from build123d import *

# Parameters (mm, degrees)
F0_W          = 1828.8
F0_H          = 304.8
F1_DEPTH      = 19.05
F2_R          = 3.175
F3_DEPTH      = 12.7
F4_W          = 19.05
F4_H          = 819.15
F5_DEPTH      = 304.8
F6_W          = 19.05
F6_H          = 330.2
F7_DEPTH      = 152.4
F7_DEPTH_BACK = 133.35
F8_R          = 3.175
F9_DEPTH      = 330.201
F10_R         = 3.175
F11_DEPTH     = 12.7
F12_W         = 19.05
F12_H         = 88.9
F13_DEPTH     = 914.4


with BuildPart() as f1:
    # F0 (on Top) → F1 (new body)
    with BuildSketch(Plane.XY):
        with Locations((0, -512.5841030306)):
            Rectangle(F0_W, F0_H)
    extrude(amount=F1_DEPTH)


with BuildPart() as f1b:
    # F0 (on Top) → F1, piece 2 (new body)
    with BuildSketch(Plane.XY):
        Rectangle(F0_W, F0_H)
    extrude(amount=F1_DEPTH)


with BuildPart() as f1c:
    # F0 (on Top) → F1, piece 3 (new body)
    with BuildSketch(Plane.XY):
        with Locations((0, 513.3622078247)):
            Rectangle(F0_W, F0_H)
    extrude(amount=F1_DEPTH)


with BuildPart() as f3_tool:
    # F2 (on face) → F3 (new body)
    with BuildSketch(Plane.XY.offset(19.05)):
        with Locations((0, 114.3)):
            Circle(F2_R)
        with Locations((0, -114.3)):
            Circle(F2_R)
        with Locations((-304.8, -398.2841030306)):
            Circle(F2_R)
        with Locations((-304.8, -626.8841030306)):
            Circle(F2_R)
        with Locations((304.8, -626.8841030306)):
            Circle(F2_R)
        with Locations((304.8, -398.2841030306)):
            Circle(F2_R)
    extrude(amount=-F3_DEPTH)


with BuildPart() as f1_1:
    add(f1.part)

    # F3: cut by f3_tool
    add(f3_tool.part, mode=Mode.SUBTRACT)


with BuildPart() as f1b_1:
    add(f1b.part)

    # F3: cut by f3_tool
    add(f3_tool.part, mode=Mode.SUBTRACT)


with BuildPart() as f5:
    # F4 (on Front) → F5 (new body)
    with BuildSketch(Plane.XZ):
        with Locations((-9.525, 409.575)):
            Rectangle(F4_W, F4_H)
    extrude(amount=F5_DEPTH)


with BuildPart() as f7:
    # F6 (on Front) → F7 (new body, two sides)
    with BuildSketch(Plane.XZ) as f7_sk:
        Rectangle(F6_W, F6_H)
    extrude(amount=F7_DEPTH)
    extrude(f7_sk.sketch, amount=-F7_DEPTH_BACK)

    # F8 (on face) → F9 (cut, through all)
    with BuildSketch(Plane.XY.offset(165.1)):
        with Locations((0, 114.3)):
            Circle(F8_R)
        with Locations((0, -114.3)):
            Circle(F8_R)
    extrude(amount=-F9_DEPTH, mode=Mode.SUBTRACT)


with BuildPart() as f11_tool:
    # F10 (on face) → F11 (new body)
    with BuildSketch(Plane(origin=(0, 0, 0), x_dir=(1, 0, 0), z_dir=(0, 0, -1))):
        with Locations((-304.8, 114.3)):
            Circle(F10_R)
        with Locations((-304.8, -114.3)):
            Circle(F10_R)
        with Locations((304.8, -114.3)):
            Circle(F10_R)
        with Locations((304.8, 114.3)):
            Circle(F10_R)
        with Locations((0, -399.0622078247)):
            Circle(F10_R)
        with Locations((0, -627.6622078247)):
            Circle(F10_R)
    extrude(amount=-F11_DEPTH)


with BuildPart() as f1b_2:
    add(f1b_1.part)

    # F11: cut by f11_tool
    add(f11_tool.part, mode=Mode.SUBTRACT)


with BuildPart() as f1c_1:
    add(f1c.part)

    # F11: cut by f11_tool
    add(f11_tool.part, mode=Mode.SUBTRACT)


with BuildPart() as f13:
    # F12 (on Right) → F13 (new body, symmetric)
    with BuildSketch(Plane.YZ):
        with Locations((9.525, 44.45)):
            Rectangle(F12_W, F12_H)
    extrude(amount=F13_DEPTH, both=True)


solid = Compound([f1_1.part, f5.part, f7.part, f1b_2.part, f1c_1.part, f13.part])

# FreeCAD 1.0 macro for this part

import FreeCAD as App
import Part
import Sketcher

V = App.Vector
Q = App.Units.Quantity

doc = App.newDocument("Part")
body = doc.addObject("PartDesign::Body", "Body")

sketch1 = body.newObject("Sketcher::SketchObject", "Sketch")
sketch1.AttachmentSupport = (doc.getObject("XY_Plane"), [""])
sketch1.MapMode = "FlatFace"
sketch1.addGeometry(Part.LineSegment(V(-914, -360, 0), V(-914, -665, 0)), False)
sketch1.addGeometry(Part.LineSegment(V(-914, -665, 0), V(914, -665, 0)), False)
sketch1.addGeometry(Part.LineSegment(V(914, -665, 0), V(914, -360, 0)), False)
sketch1.addGeometry(Part.LineSegment(V(914, -360, 0), V(-914, -360, 0)), False)
sketch1.addConstraint(Sketcher.Constraint("Coincident", 0, 2, 1, 1))
sketch1.addConstraint(Sketcher.Constraint("Coincident", 1, 2, 2, 1))
sketch1.addConstraint(Sketcher.Constraint("Coincident", 2, 2, 3, 1))
sketch1.addConstraint(Sketcher.Constraint("Coincident", 3, 2, 0, 1))
sketch1.addConstraint(Sketcher.Constraint("Vertical", 0))
sketch1.addConstraint(Sketcher.Constraint("Horizontal", 1))
sketch1.addConstraint(Sketcher.Constraint("Vertical", 2))
sketch1.addConstraint(Sketcher.Constraint("Horizontal", 3))
sketch1.addConstraint(Sketcher.Constraint("DistanceX", 1, 1, 1, 2, Q("72 in")))
sketch1.addConstraint(Sketcher.Constraint("DistanceY", 0, 2, 0, 1, Q("12 in")))
sketch1.addConstraint(Sketcher.Constraint("DistanceX", 0, 2, -1, 1, Q("36 in")))
sketch1.addConstraint(Sketcher.Constraint("DistanceY", 0, 2, -1, 1, Q("664.984103 mm")))
pad1 = body.newObject("PartDesign::Pad", "Pad")
pad1.Profile = sketch1
pad1.Length = Q("0.75 in")
body2 = doc.addObject("PartDesign::Body", "Body001")

sketch2 = body2.newObject("Sketcher::SketchObject", "Sketch001")
sketch2.AttachmentSupport = (doc.getObject("XY_Plane001"), [""])
sketch2.MapMode = "FlatFace"
sketch2.addGeometry(Part.LineSegment(V(-914, 152, 0), V(-914, -152, 0)), False)
sketch2.addGeometry(Part.LineSegment(V(-914, -152, 0), V(914, -152, 0)), False)
sketch2.addGeometry(Part.LineSegment(V(914, -152, 0), V(914, 152, 0)), False)
sketch2.addGeometry(Part.LineSegment(V(914, 152, 0), V(-914, 152, 0)), False)
sketch2.addConstraint(Sketcher.Constraint("Coincident", 0, 2, 1, 1))
sketch2.addConstraint(Sketcher.Constraint("Coincident", 1, 2, 2, 1))
sketch2.addConstraint(Sketcher.Constraint("Coincident", 2, 2, 3, 1))
sketch2.addConstraint(Sketcher.Constraint("Coincident", 3, 2, 0, 1))
sketch2.addConstraint(Sketcher.Constraint("Vertical", 0))
sketch2.addConstraint(Sketcher.Constraint("Horizontal", 1))
sketch2.addConstraint(Sketcher.Constraint("Vertical", 2))
sketch2.addConstraint(Sketcher.Constraint("Horizontal", 3))
sketch2.addConstraint(Sketcher.Constraint("Symmetric", 0, 2, 2, 2, -1, 1))
sketch2.addConstraint(Sketcher.Constraint("DistanceX", 1, 1, 1, 2, Q("72 in")))
sketch2.addConstraint(Sketcher.Constraint("DistanceY", 0, 2, 0, 1, Q("12 in")))
pad2 = body2.newObject("PartDesign::Pad", "Pad001")
pad2.Profile = sketch2
pad2.Length = Q("0.75 in")
body3 = doc.addObject("PartDesign::Body", "Body002")

sketch3 = body3.newObject("Sketcher::SketchObject", "Sketch002")
sketch3.AttachmentSupport = (doc.getObject("XY_Plane002"), [""])
sketch3.MapMode = "FlatFace"
sketch3.addGeometry(Part.LineSegment(V(-914, 666, 0), V(-914, 361, 0)), False)
sketch3.addGeometry(Part.LineSegment(V(-914, 361, 0), V(914, 361, 0)), False)
sketch3.addGeometry(Part.LineSegment(V(914, 361, 0), V(914, 666, 0)), False)
sketch3.addGeometry(Part.LineSegment(V(914, 666, 0), V(-914, 666, 0)), False)
sketch3.addConstraint(Sketcher.Constraint("Coincident", 0, 2, 1, 1))
sketch3.addConstraint(Sketcher.Constraint("Coincident", 1, 2, 2, 1))
sketch3.addConstraint(Sketcher.Constraint("Coincident", 2, 2, 3, 1))
sketch3.addConstraint(Sketcher.Constraint("Coincident", 3, 2, 0, 1))
sketch3.addConstraint(Sketcher.Constraint("Vertical", 0))
sketch3.addConstraint(Sketcher.Constraint("Horizontal", 1))
sketch3.addConstraint(Sketcher.Constraint("Vertical", 2))
sketch3.addConstraint(Sketcher.Constraint("Horizontal", 3))
sketch3.addConstraint(Sketcher.Constraint("DistanceX", 1, 1, 1, 2, Q("72 in")))
sketch3.addConstraint(Sketcher.Constraint("DistanceY", 0, 2, 0, 1, Q("12 in")))
sketch3.addConstraint(Sketcher.Constraint("DistanceX", 0, 2, -1, 1, Q("36 in")))
sketch3.addConstraint(Sketcher.Constraint("DistanceY", -1, 1, 0, 2, Q("360.962208 mm")))
pad3 = body3.newObject("PartDesign::Pad", "Pad002")
pad3.Profile = sketch3
pad3.Length = Q("0.75 in")
body4 = doc.addObject("PartDesign::Body", "Body003")
body4.AllowCompound = True

sketch4 = body4.newObject("Sketcher::SketchObject", "Sketch003")
sketch4.AttachmentSupport = (doc.getObject("XY_Plane003"), [""])
sketch4.MapMode = "FlatFace"
sketch4.AttachmentOffset = App.Placement(V(0, 0, 0.75 * 25.4), App.Rotation())
sketch4.addGeometry(Part.Circle(V(0, 114.3, 0), V(0, 0, 1), 3.2), False)
sketch4.addGeometry(Part.Circle(V(0, -114.3, 0), V(0, 0, 1), 3.2), False)
sketch4.addGeometry(Part.Circle(V(-304.8, -398.3, 0), V(0, 0, 1), 3.2), False)
sketch4.addGeometry(Part.Circle(V(-304.8, -626.9, 0), V(0, 0, 1), 3.2), False)
sketch4.addGeometry(Part.Circle(V(304.8, -626.9, 0), V(0, 0, 1), 3.2), False)
sketch4.addGeometry(Part.Circle(V(304.8, -398.3, 0), V(0, 0, 1), 3.2), False)
sketch4.addConstraint(Sketcher.Constraint("Equal", 0, 1))
sketch4.addConstraint(Sketcher.Constraint("Equal", 1, 2))
sketch4.addConstraint(Sketcher.Constraint("Equal", 2, 3))
sketch4.addConstraint(Sketcher.Constraint("Equal", 3, 4))
sketch4.addConstraint(Sketcher.Constraint("Equal", 4, 5))
sketch4.addConstraint(Sketcher.Constraint("Symmetric", 0, 3, 1, 3, -1, 1))
sketch4.addConstraint(Sketcher.Constraint("Symmetric", 3, 3, 4, 3, -2))
sketch4.addConstraint(Sketcher.Constraint("Symmetric", 2, 3, 5, 3, -2))
sketch4.addConstraint(Sketcher.Constraint("PointOnObject", 0, 3, -2))
sketch4.addConstraint(Sketcher.Constraint("Vertical", 2, 3, 3, 3))
sketch4.addConstraint(Sketcher.Constraint("Diameter", 0, Q("0.25 in")))
sketch4.addConstraint(Sketcher.Constraint("DistanceX", 2, 3, -1, 1, Q("12 in")))
sketch4.addConstraint(Sketcher.Constraint("DistanceY", 1, 3, 0, 3, Q("9 in")))
sketch4.addConstraint(Sketcher.Constraint("DistanceY", 3, 3, 2, 3, Q("9 in")))
sketch4.addConstraint(Sketcher.Constraint("DistanceY", 2, 3, -1, 1, Q("398.284103 mm")))
pad4 = body4.newObject("PartDesign::Pad", "Pad003")
pad4.Profile = sketch4
pad4.Length = Q("0.5 in")
pad4.Reversed = True
doc.recompute()

body5 = doc.addObject("PartDesign::Body", "Body004")
body5.BaseFeature = body4
boolean = body.newObject("PartDesign::Boolean", "Boolean")
boolean.Type = "Cut"
boolean.addObjects([body5])
doc.recompute()

boolean2 = body2.newObject("PartDesign::Boolean", "Boolean001")
boolean2.Type = "Cut"
boolean2.addObjects([body4])
body6 = doc.addObject("PartDesign::Body", "Body005")

sketch5 = body6.newObject("Sketcher::SketchObject", "Sketch004")
sketch5.AttachmentSupport = (doc.getObject("XZ_Plane005"), [""])
sketch5.MapMode = "FlatFace"
sketch5.addGeometry(Part.LineSegment(V(-19, 819, 0), V(-19, 0, 0)), False)
sketch5.addGeometry(Part.LineSegment(V(-19, 0, 0), V(0, 0, 0)), False)
sketch5.addGeometry(Part.LineSegment(V(0, 0, 0), V(0, 819, 0)), False)
sketch5.addGeometry(Part.LineSegment(V(0, 819, 0), V(-19, 819, 0)), False)
sketch5.addConstraint(Sketcher.Constraint("Coincident", 0, 2, 1, 1))
sketch5.addConstraint(Sketcher.Constraint("Coincident", 1, 2, 2, 1))
sketch5.addConstraint(Sketcher.Constraint("Coincident", 2, 2, 3, 1))
sketch5.addConstraint(Sketcher.Constraint("Coincident", 3, 2, 0, 1))
sketch5.addConstraint(Sketcher.Constraint("Vertical", 0))
sketch5.addConstraint(Sketcher.Constraint("Horizontal", 1))
sketch5.addConstraint(Sketcher.Constraint("Vertical", 2))
sketch5.addConstraint(Sketcher.Constraint("Horizontal", 3))
sketch5.addConstraint(Sketcher.Constraint("Coincident", 1, 2, -1, 1))
sketch5.addConstraint(Sketcher.Constraint("DistanceX", 1, 1, 1, 2, Q("0.75 in")))
sketch5.addConstraint(Sketcher.Constraint("DistanceY", 0, 2, 0, 1, Q("32.25 in")))
pad5 = body6.newObject("PartDesign::Pad", "Pad004")
pad5.Profile = sketch5
pad5.Length = Q("12 in")
body7 = doc.addObject("PartDesign::Body", "Body006")

sketch6 = body7.newObject("Sketcher::SketchObject", "Sketch005")
sketch6.AttachmentSupport = (doc.getObject("XZ_Plane006"), [""])
sketch6.MapMode = "FlatFace"
sketch6.addGeometry(Part.LineSegment(V(-10, 165, 0), V(-10, -165, 0)), False)
sketch6.addGeometry(Part.LineSegment(V(-10, -165, 0), V(10, -165, 0)), False)
sketch6.addGeometry(Part.LineSegment(V(10, -165, 0), V(10, 165, 0)), False)
sketch6.addGeometry(Part.LineSegment(V(10, 165, 0), V(-10, 165, 0)), False)
sketch6.addConstraint(Sketcher.Constraint("Coincident", 0, 2, 1, 1))
sketch6.addConstraint(Sketcher.Constraint("Coincident", 1, 2, 2, 1))
sketch6.addConstraint(Sketcher.Constraint("Coincident", 2, 2, 3, 1))
sketch6.addConstraint(Sketcher.Constraint("Coincident", 3, 2, 0, 1))
sketch6.addConstraint(Sketcher.Constraint("Vertical", 0))
sketch6.addConstraint(Sketcher.Constraint("Horizontal", 1))
sketch6.addConstraint(Sketcher.Constraint("Vertical", 2))
sketch6.addConstraint(Sketcher.Constraint("Horizontal", 3))
sketch6.addConstraint(Sketcher.Constraint("Symmetric", 0, 2, 2, 2, -1, 1))
sketch6.addConstraint(Sketcher.Constraint("DistanceY", 0, 2, 0, 1, Q("13 in")))
sketch6.addConstraint(Sketcher.Constraint("DistanceX", 1, 1, 1, 2, Q("0.75 in")))
pad6 = body7.newObject("PartDesign::Pad", "Pad005")
pad6.Profile = sketch6
pad6.Type = "TwoLengths"
pad6.Length = Q("6 in")
pad6.Length2 = Q("5.25 in")

sketch7 = body7.newObject("Sketcher::SketchObject", "Sketch006")
sketch7.AttachmentSupport = (doc.getObject("XY_Plane006"), [""])
sketch7.MapMode = "FlatFace"
sketch7.AttachmentOffset = App.Placement(V(0, 0, 6.5 * 25.4), App.Rotation())
sketch7.addGeometry(Part.Circle(V(0, 114.3, 0), V(0, 0, 1), 3.2), False)
sketch7.addGeometry(Part.Circle(V(0, -114.3, 0), V(0, 0, 1), 3.2), False)
sketch7.addConstraint(Sketcher.Constraint("Equal", 0, 1))
sketch7.addConstraint(Sketcher.Constraint("Symmetric", 0, 3, 1, 3, -1, 1))
sketch7.addConstraint(Sketcher.Constraint("PointOnObject", 0, 3, -2))
sketch7.addConstraint(Sketcher.Constraint("Diameter", 0, Q("0.25 in")))
sketch7.addConstraint(Sketcher.Constraint("DistanceY", 1, 3, 0, 3, Q("9 in")))
pocket1 = body7.newObject("PartDesign::Pocket", "Pocket")
pocket1.Profile = sketch7
pocket1.Type = "ThroughAll"
body8 = doc.addObject("PartDesign::Body", "Body007")
body8.AllowCompound = True

sketch8 = body8.newObject("Sketcher::SketchObject", "Sketch007")
sketch8.AttachmentSupport = (doc.getObject("XY_Plane007"), [""])
sketch8.MapMode = "FlatFace"
sketch8.addGeometry(Part.Circle(V(-304.8, -114.3, 0), V(0, 0, 1), 3.2), False)
sketch8.addGeometry(Part.Circle(V(-304.8, 114.3, 0), V(0, 0, 1), 3.2), False)
sketch8.addGeometry(Part.Circle(V(304.8, 114.3, 0), V(0, 0, 1), 3.2), False)
sketch8.addGeometry(Part.Circle(V(304.8, -114.3, 0), V(0, 0, 1), 3.2), False)
sketch8.addGeometry(Part.Circle(V(0, 399.1, 0), V(0, 0, 1), 3.2), False)
sketch8.addGeometry(Part.Circle(V(0, 627.7, 0), V(0, 0, 1), 3.2), False)
sketch8.addConstraint(Sketcher.Constraint("Equal", 0, 1))
sketch8.addConstraint(Sketcher.Constraint("Equal", 1, 2))
sketch8.addConstraint(Sketcher.Constraint("Equal", 2, 3))
sketch8.addConstraint(Sketcher.Constraint("Equal", 3, 4))
sketch8.addConstraint(Sketcher.Constraint("Equal", 4, 5))
sketch8.addConstraint(Sketcher.Constraint("Symmetric", 0, 3, 2, 3, -1, 1))
sketch8.addConstraint(Sketcher.Constraint("Symmetric", 1, 3, 3, 3, -1, 1))
sketch8.addConstraint(Sketcher.Constraint("Symmetric", 1, 3, 2, 3, -2))
sketch8.addConstraint(Sketcher.Constraint("PointOnObject", 4, 3, -2))
sketch8.addConstraint(Sketcher.Constraint("PointOnObject", 5, 3, -2))
sketch8.addConstraint(Sketcher.Constraint("Diameter", 0, Q("0.25 in")))
sketch8.addConstraint(Sketcher.Constraint("DistanceX", 0, 3, -1, 1, Q("12 in")))
sketch8.addConstraint(Sketcher.Constraint("DistanceY", 0, 3, 1, 3, Q("9 in")))
sketch8.addConstraint(Sketcher.Constraint("DistanceY", 4, 3, 5, 3, Q("9 in")))
sketch8.addConstraint(Sketcher.Constraint("DistanceY", -1, 1, 4, 3, Q("399.062208 mm")))
pad7 = body8.newObject("PartDesign::Pad", "Pad006")
pad7.Profile = sketch8
pad7.Length = Q("0.5 in")
doc.recompute()

body9 = doc.addObject("PartDesign::Body", "Body008")
body9.BaseFeature = body8
boolean3 = body2.newObject("PartDesign::Boolean", "Boolean002")
boolean3.Type = "Cut"
boolean3.addObjects([body9])
doc.recompute()

boolean4 = body3.newObject("PartDesign::Boolean", "Boolean003")
boolean4.Type = "Cut"
boolean4.addObjects([body8])
body10 = doc.addObject("PartDesign::Body", "Body009")

sketch9 = body10.newObject("Sketcher::SketchObject", "Sketch008")
sketch9.AttachmentSupport = (doc.getObject("YZ_Plane009"), [""])
sketch9.MapMode = "FlatFace"
sketch9.addGeometry(Part.LineSegment(V(0, 89, 0), V(0, 0, 0)), False)
sketch9.addGeometry(Part.LineSegment(V(0, 0, 0), V(19, 0, 0)), False)
sketch9.addGeometry(Part.LineSegment(V(19, 0, 0), V(19, 89, 0)), False)
sketch9.addGeometry(Part.LineSegment(V(19, 89, 0), V(0, 89, 0)), False)
sketch9.addConstraint(Sketcher.Constraint("Coincident", 0, 2, 1, 1))
sketch9.addConstraint(Sketcher.Constraint("Coincident", 1, 2, 2, 1))
sketch9.addConstraint(Sketcher.Constraint("Coincident", 2, 2, 3, 1))
sketch9.addConstraint(Sketcher.Constraint("Coincident", 3, 2, 0, 1))
sketch9.addConstraint(Sketcher.Constraint("Vertical", 0))
sketch9.addConstraint(Sketcher.Constraint("Horizontal", 1))
sketch9.addConstraint(Sketcher.Constraint("Vertical", 2))
sketch9.addConstraint(Sketcher.Constraint("Horizontal", 3))
sketch9.addConstraint(Sketcher.Constraint("Coincident", 0, 2, -1, 1))
sketch9.addConstraint(Sketcher.Constraint("DistanceY", 0, 2, 0, 1, Q("3.5 in")))
sketch9.addConstraint(Sketcher.Constraint("DistanceX", 1, 1, 1, 2, Q("0.75 in")))
pad8 = body10.newObject("PartDesign::Pad", "Pad007")
pad8.Profile = sketch9
pad8.Length = Q("72 in")
pad8.Midplane = True

doc.recompute()
